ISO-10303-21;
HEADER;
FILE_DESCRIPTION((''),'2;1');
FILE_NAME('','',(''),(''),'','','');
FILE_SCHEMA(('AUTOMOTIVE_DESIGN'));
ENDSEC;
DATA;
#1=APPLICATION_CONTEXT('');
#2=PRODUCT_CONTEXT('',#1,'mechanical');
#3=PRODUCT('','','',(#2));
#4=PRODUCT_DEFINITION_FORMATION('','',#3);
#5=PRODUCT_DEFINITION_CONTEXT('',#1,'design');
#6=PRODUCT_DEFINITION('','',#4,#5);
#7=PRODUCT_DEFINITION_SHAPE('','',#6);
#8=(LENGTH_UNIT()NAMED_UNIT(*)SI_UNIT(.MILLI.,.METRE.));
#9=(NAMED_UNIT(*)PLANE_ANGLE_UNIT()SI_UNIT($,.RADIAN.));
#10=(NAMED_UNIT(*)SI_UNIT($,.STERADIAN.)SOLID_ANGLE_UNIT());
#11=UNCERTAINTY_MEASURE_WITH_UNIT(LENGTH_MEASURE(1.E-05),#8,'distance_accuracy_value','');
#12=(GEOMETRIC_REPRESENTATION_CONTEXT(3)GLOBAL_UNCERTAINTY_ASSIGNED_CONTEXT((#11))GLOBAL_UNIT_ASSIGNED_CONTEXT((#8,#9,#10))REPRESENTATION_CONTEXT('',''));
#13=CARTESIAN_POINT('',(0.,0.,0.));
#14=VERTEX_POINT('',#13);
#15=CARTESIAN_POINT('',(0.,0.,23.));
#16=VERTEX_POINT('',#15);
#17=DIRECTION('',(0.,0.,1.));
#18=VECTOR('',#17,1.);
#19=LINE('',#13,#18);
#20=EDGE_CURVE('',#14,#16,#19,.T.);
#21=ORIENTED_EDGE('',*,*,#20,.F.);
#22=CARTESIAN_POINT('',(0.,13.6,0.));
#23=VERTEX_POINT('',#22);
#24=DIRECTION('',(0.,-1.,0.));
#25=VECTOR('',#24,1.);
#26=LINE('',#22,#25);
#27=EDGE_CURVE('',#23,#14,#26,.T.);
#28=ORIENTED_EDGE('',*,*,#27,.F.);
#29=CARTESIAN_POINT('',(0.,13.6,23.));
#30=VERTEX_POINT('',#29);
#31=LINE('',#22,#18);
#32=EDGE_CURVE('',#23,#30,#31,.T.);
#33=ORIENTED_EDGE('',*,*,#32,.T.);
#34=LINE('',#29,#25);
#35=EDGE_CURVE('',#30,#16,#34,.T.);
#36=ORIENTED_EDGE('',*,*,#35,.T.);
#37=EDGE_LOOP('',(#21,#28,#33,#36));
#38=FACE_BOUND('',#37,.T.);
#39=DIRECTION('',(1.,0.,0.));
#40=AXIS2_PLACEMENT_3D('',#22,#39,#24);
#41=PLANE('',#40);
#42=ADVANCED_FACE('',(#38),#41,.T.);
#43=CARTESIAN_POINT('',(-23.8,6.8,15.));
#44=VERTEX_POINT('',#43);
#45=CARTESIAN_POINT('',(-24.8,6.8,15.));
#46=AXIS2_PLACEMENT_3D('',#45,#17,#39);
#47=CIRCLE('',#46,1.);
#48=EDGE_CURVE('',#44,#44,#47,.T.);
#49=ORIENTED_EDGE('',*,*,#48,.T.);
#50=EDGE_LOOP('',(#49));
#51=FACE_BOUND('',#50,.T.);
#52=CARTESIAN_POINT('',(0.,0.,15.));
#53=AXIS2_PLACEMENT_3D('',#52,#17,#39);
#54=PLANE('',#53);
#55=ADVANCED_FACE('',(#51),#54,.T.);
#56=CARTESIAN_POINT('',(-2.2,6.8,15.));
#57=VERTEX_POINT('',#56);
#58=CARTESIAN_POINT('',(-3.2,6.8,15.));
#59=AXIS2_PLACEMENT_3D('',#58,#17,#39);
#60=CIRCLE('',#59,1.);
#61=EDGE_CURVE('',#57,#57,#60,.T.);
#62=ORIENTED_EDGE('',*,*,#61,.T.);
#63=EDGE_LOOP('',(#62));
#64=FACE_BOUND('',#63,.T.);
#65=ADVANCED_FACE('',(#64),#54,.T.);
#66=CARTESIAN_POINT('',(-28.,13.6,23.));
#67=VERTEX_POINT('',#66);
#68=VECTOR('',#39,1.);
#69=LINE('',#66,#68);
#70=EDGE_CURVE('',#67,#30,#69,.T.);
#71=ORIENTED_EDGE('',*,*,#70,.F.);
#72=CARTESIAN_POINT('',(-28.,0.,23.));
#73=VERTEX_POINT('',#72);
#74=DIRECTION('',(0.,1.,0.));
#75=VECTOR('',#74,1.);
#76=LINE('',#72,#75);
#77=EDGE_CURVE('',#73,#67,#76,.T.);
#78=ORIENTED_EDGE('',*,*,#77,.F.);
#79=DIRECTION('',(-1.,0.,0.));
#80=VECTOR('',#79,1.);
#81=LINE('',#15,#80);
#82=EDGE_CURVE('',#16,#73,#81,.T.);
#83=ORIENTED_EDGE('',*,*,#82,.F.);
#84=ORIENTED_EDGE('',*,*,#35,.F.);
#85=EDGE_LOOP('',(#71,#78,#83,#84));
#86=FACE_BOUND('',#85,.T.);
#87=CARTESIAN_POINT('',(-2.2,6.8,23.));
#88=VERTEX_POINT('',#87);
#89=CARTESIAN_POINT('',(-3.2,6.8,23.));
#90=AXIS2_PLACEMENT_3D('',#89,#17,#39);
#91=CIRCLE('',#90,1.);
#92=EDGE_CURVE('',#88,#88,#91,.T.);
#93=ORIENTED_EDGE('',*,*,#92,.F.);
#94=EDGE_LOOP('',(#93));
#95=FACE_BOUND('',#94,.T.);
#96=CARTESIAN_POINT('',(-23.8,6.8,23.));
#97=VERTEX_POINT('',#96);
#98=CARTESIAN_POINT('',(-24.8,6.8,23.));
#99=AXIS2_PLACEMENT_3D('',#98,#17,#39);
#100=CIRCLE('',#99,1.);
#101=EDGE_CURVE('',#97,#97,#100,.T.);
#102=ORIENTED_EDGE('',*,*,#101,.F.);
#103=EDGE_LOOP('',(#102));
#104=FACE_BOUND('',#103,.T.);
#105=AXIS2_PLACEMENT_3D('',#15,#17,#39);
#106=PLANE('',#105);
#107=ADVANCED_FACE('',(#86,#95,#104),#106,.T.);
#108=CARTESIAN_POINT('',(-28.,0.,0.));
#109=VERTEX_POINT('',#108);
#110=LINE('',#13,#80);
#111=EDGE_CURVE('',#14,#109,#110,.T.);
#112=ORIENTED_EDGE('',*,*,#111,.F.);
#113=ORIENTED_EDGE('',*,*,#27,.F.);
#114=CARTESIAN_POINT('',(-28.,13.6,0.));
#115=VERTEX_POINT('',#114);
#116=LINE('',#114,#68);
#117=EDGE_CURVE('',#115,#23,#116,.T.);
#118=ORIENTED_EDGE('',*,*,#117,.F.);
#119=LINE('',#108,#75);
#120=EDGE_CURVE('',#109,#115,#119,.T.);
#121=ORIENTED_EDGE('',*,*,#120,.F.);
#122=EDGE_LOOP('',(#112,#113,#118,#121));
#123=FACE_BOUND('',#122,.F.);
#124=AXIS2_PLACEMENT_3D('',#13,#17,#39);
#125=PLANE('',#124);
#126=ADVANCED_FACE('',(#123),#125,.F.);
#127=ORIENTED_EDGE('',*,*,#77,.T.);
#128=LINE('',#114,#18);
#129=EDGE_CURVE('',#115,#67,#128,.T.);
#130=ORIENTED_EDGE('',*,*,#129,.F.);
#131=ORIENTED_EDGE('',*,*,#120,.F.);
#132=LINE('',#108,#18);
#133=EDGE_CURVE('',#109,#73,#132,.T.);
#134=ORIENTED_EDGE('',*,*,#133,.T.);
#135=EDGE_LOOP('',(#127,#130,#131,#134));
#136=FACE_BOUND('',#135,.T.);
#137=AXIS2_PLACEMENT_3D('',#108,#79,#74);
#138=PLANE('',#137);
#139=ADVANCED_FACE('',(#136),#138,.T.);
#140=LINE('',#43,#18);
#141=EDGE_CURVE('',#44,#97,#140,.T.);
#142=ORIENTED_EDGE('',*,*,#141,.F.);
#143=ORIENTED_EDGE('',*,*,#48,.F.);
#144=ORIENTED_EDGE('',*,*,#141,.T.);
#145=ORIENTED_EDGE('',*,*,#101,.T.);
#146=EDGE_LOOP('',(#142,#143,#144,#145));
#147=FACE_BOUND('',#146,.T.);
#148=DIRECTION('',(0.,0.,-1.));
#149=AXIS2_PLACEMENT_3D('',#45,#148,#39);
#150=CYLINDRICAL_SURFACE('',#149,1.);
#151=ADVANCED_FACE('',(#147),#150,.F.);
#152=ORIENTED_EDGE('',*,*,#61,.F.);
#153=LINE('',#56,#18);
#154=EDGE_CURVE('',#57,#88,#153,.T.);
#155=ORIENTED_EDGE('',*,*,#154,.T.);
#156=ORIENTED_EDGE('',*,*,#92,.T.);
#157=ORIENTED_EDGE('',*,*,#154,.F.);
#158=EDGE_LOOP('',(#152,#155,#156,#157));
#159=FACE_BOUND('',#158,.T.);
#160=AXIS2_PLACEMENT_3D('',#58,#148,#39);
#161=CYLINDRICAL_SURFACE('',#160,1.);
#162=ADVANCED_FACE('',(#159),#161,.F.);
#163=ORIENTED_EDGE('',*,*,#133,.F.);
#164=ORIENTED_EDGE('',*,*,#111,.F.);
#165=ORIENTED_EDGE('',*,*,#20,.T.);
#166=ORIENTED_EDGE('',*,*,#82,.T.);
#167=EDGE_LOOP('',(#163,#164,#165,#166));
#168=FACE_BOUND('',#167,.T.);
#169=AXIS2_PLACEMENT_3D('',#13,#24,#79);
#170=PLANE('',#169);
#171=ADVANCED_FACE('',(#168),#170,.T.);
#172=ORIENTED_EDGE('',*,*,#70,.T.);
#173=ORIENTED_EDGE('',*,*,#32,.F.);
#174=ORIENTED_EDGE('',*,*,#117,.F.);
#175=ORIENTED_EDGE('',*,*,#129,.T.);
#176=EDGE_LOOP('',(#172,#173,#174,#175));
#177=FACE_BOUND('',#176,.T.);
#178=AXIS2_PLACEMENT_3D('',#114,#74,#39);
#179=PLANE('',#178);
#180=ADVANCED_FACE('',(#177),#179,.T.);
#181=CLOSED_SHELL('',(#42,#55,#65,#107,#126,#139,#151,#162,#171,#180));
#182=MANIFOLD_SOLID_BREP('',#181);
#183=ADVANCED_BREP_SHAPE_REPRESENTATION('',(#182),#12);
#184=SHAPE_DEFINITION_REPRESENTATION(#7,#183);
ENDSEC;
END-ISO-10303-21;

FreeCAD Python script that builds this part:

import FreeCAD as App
import Part
import Sketcher
from FreeCAD import Vector
Q = App.Units.Quantity

doc = App.newDocument("Part")
body = doc.addObject("PartDesign::Body", "Body")

sketch1 = doc.addObject("Sketcher::SketchObject", "Sketch")
body.addObject(sketch1)
sketch1.AttachmentSupport = (doc.XY_Plane, [""])
sketch1.MapMode = "FlatFace"
sketch1.addGeometry([
    Part.LineSegment(Vector(-28, 0, 0), Vector(0, 0, 0)),
    Part.LineSegment(Vector(0, 0, 0), Vector(0, 14, 0)),
    Part.LineSegment(Vector(0, 14, 0), Vector(-28, 14, 0)),
    Part.LineSegment(Vector(-28, 14, 0), Vector(-28, 0, 0)),
], False)
sketch1.addConstraint([
    Sketcher.Constraint("Coincident", 0, 2, 1, 1),
    Sketcher.Constraint("Coincident", 1, 2, 2, 1),
    Sketcher.Constraint("Coincident", 2, 2, 3, 1),
    Sketcher.Constraint("Coincident", 3, 2, 0, 1),
    Sketcher.Constraint("Horizontal", 0),
    Sketcher.Constraint("Vertical", 1),
    Sketcher.Constraint("Horizontal", 2),
    Sketcher.Constraint("Vertical", 3),
    Sketcher.Constraint("Coincident", 0, 2, -1, 1),
    Sketcher.Constraint("DistanceX", 0, 1, 0, 2, Q("28 mm")),
    Sketcher.Constraint("DistanceY", 1, 1, 1, 2, Q("13.6 mm")),
])
pad1 = doc.addObject("PartDesign::Pad", "Pad")
body.addObject(pad1)
pad1.Profile = sketch1
pad1.Length = 23

sketch2 = doc.addObject("Sketcher::SketchObject", "Sketch001")
body.addObject(sketch2)
sketch2.AttachmentSupport = (doc.XY_Plane, [""])
sketch2.MapMode = "FlatFace"
sketch2.AttachmentOffset = App.Placement(Vector(0, 0, 15), App.Rotation())
sketch2.addGeometry([
    Part.Circle(Vector(-24.8, 6.8, 0), Vector(0, 0, 1), 1),
    Part.Circle(Vector(-3.2, 6.8, 0), Vector(0, 0, 1), 1),
], False)
sketch2.addConstraint([
    Sketcher.Constraint("Equal", 0, 1),
    Sketcher.Constraint("Horizontal", 0, 3, 1, 3),
    Sketcher.Constraint("Diameter", 0, Q("2 mm")),
    Sketcher.Constraint("DistanceX", 0, 3, 1, 3, Q("21.6 mm")),
    Sketcher.Constraint("DistanceX", 0, 3, -1, 1, Q("24.8 mm")),
    Sketcher.Constraint("DistanceY", -1, 1, 0, 3, Q("6.8 mm")),
])
pocket1 = doc.addObject("PartDesign::Pocket", "Pocket")
body.addObject(pocket1)
pocket1.Profile = sketch2
pocket1.Length = 8
pocket1.Reversed = True

doc.recompute()
